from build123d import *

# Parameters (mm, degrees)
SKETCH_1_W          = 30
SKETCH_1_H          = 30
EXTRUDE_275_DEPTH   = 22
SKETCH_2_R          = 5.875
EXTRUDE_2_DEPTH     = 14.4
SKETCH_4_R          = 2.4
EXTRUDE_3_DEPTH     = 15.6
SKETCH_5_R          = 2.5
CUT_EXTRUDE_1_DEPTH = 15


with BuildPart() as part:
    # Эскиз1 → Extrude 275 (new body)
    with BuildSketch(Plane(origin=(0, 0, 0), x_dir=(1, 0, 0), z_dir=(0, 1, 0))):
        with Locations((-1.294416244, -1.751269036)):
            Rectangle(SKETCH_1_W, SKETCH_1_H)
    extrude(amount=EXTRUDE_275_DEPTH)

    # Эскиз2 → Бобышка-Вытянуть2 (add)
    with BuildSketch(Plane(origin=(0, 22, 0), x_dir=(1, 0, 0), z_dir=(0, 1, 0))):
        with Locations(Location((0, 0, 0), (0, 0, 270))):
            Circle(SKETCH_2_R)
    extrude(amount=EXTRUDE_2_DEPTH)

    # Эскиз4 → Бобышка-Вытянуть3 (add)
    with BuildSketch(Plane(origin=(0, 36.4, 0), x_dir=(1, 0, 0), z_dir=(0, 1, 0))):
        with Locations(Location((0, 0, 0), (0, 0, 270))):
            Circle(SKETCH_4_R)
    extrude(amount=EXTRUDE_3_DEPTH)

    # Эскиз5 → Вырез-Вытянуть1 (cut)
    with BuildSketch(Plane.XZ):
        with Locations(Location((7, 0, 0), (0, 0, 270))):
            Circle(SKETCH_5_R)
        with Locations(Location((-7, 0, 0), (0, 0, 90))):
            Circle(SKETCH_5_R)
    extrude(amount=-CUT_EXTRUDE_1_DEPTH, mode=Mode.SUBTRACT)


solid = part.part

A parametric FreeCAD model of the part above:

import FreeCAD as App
import Part
import Sketcher
from FreeCAD import Vector


def add_polygon(sketch, points):
    """Adds a closed chain of lines whose ends are joined by coincident constraints."""
    first, n = sketch.GeometryCount, len(points)
    for a, b in zip(points, points[1:] + points[:1]):
        sketch.addGeometry(Part.LineSegment(App.Vector(*a, 0), App.Vector(*b, 0)), False)
    for i in range(n):
        sketch.addConstraint(Sketcher.Constraint("Coincident", first + i, 2, first + (i + 1) % n, 1))

doc = App.newDocument("Part")
body = doc.addObject("PartDesign::Body", "Body")

sketch1 = doc.addObject("Sketcher::SketchObject", "Sketch")
body.addObject(sketch1)
sketch1.AttachmentSupport = (doc.XZ_Plane, [""])
sketch1.MapMode = "FlatFace"
add_polygon(sketch1, [(-16, -13), (-16, 17), (14, 17), (14, -13)])
sketch1.addConstraint(Sketcher.Constraint("Vertical", 0))
sketch1.addConstraint(Sketcher.Constraint("Horizontal", 1))
sketch1.addConstraint(Sketcher.Constraint("Vertical", 2))
sketch1.addConstraint(Sketcher.Constraint("Horizontal", 3))
sketch1.addConstraint(Sketcher.Constraint("Equal", 3, 0))
sketch1.addConstraint(Sketcher.Constraint("DistanceX", 1, 1, 1, 2, 30.0))
sketch1.addConstraint(Sketcher.Constraint("DistanceY", -1, 1, 0, 2, 16.751269))
sketch1.addConstraint(Sketcher.Constraint("DistanceX", 0, 2, -1, 1, 16.294416))
pad1 = doc.addObject("PartDesign::Pad", "Pad")
body.addObject(pad1)
pad1.Profile = sketch1
pad1.Length = 22
pad1.Reversed = True

sketch2 = doc.addObject("Sketcher::SketchObject", "Sketch001")
body.addObject(sketch2)
sketch2.AttachmentSupport = (doc.XZ_Plane, [""])
sketch2.MapMode = "FlatFace"
sketch2.AttachmentOffset = App.Placement(Vector(0, 0, -22), App.Rotation())
sketch2.addGeometry(Part.Circle(Vector(0, 0, 0), Vector(0, 0, 1), 6), False)
sketch2.addConstraint(Sketcher.Constraint("Coincident", 0, 3, -1, 1))
sketch2.addConstraint(Sketcher.Constraint("Diameter", 0, 11.75))
pad2 = doc.addObject("PartDesign::Pad", "Pad001")
body.addObject(pad2)
pad2.Profile = sketch2
pad2.Length = 14.4
pad2.Reversed = True

sketch3 = doc.addObject("Sketcher::SketchObject", "Sketch002")
body.addObject(sketch3)
sketch3.AttachmentSupport = (doc.XZ_Plane, [""])
sketch3.MapMode = "FlatFace"
sketch3.AttachmentOffset = App.Placement(Vector(0, 0, -36.4), App.Rotation())
sketch3.addGeometry(Part.Circle(Vector(0, 0, 0), Vector(0, 0, 1), 2.4), False)
sketch3.addConstraint(Sketcher.Constraint("Coincident", 0, 3, -1, 1))
sketch3.addConstraint(Sketcher.Constraint("Diameter", 0, 4.8))
pad3 = doc.addObject("PartDesign::Pad", "Pad002")
body.addObject(pad3)
pad3.Profile = sketch3
pad3.Length = 15.6
pad3.Reversed = True

sketch4 = doc.addObject("Sketcher::SketchObject", "Sketch003")
body.addObject(sketch4)
sketch4.AttachmentSupport = (doc.XZ_Plane, [""])
sketch4.MapMode = "FlatFace"
sketch4.addGeometry(Part.Circle(Vector(7, 0, 0), Vector(0, 0, 1), 2.5), False)
sketch4.addGeometry(Part.Circle(Vector(-7, 0, 0), Vector(0, 0, 1), 2.5), False)
sketch4.addConstraint(Sketcher.Constraint("Equal", 0, 1))
sketch4.addConstraint(Sketcher.Constraint("Symmetric", 0, 3, 1, 3, -1, 1))
sketch4.addConstraint(Sketcher.Constraint("PointOnObject", 0, 3, -1))
sketch4.addConstraint(Sketcher.Constraint("Diameter", 0, 5.0))
sketch4.addConstraint(Sketcher.Constraint("DistanceX", -1, 1, 0, 3, 7.0))
pocket1 = doc.addObject("PartDesign::Pocket", "Pocket")
body.addObject(pocket1)
pocket1.Profile = sketch4
pocket1.Length = 15

doc.recompute()
